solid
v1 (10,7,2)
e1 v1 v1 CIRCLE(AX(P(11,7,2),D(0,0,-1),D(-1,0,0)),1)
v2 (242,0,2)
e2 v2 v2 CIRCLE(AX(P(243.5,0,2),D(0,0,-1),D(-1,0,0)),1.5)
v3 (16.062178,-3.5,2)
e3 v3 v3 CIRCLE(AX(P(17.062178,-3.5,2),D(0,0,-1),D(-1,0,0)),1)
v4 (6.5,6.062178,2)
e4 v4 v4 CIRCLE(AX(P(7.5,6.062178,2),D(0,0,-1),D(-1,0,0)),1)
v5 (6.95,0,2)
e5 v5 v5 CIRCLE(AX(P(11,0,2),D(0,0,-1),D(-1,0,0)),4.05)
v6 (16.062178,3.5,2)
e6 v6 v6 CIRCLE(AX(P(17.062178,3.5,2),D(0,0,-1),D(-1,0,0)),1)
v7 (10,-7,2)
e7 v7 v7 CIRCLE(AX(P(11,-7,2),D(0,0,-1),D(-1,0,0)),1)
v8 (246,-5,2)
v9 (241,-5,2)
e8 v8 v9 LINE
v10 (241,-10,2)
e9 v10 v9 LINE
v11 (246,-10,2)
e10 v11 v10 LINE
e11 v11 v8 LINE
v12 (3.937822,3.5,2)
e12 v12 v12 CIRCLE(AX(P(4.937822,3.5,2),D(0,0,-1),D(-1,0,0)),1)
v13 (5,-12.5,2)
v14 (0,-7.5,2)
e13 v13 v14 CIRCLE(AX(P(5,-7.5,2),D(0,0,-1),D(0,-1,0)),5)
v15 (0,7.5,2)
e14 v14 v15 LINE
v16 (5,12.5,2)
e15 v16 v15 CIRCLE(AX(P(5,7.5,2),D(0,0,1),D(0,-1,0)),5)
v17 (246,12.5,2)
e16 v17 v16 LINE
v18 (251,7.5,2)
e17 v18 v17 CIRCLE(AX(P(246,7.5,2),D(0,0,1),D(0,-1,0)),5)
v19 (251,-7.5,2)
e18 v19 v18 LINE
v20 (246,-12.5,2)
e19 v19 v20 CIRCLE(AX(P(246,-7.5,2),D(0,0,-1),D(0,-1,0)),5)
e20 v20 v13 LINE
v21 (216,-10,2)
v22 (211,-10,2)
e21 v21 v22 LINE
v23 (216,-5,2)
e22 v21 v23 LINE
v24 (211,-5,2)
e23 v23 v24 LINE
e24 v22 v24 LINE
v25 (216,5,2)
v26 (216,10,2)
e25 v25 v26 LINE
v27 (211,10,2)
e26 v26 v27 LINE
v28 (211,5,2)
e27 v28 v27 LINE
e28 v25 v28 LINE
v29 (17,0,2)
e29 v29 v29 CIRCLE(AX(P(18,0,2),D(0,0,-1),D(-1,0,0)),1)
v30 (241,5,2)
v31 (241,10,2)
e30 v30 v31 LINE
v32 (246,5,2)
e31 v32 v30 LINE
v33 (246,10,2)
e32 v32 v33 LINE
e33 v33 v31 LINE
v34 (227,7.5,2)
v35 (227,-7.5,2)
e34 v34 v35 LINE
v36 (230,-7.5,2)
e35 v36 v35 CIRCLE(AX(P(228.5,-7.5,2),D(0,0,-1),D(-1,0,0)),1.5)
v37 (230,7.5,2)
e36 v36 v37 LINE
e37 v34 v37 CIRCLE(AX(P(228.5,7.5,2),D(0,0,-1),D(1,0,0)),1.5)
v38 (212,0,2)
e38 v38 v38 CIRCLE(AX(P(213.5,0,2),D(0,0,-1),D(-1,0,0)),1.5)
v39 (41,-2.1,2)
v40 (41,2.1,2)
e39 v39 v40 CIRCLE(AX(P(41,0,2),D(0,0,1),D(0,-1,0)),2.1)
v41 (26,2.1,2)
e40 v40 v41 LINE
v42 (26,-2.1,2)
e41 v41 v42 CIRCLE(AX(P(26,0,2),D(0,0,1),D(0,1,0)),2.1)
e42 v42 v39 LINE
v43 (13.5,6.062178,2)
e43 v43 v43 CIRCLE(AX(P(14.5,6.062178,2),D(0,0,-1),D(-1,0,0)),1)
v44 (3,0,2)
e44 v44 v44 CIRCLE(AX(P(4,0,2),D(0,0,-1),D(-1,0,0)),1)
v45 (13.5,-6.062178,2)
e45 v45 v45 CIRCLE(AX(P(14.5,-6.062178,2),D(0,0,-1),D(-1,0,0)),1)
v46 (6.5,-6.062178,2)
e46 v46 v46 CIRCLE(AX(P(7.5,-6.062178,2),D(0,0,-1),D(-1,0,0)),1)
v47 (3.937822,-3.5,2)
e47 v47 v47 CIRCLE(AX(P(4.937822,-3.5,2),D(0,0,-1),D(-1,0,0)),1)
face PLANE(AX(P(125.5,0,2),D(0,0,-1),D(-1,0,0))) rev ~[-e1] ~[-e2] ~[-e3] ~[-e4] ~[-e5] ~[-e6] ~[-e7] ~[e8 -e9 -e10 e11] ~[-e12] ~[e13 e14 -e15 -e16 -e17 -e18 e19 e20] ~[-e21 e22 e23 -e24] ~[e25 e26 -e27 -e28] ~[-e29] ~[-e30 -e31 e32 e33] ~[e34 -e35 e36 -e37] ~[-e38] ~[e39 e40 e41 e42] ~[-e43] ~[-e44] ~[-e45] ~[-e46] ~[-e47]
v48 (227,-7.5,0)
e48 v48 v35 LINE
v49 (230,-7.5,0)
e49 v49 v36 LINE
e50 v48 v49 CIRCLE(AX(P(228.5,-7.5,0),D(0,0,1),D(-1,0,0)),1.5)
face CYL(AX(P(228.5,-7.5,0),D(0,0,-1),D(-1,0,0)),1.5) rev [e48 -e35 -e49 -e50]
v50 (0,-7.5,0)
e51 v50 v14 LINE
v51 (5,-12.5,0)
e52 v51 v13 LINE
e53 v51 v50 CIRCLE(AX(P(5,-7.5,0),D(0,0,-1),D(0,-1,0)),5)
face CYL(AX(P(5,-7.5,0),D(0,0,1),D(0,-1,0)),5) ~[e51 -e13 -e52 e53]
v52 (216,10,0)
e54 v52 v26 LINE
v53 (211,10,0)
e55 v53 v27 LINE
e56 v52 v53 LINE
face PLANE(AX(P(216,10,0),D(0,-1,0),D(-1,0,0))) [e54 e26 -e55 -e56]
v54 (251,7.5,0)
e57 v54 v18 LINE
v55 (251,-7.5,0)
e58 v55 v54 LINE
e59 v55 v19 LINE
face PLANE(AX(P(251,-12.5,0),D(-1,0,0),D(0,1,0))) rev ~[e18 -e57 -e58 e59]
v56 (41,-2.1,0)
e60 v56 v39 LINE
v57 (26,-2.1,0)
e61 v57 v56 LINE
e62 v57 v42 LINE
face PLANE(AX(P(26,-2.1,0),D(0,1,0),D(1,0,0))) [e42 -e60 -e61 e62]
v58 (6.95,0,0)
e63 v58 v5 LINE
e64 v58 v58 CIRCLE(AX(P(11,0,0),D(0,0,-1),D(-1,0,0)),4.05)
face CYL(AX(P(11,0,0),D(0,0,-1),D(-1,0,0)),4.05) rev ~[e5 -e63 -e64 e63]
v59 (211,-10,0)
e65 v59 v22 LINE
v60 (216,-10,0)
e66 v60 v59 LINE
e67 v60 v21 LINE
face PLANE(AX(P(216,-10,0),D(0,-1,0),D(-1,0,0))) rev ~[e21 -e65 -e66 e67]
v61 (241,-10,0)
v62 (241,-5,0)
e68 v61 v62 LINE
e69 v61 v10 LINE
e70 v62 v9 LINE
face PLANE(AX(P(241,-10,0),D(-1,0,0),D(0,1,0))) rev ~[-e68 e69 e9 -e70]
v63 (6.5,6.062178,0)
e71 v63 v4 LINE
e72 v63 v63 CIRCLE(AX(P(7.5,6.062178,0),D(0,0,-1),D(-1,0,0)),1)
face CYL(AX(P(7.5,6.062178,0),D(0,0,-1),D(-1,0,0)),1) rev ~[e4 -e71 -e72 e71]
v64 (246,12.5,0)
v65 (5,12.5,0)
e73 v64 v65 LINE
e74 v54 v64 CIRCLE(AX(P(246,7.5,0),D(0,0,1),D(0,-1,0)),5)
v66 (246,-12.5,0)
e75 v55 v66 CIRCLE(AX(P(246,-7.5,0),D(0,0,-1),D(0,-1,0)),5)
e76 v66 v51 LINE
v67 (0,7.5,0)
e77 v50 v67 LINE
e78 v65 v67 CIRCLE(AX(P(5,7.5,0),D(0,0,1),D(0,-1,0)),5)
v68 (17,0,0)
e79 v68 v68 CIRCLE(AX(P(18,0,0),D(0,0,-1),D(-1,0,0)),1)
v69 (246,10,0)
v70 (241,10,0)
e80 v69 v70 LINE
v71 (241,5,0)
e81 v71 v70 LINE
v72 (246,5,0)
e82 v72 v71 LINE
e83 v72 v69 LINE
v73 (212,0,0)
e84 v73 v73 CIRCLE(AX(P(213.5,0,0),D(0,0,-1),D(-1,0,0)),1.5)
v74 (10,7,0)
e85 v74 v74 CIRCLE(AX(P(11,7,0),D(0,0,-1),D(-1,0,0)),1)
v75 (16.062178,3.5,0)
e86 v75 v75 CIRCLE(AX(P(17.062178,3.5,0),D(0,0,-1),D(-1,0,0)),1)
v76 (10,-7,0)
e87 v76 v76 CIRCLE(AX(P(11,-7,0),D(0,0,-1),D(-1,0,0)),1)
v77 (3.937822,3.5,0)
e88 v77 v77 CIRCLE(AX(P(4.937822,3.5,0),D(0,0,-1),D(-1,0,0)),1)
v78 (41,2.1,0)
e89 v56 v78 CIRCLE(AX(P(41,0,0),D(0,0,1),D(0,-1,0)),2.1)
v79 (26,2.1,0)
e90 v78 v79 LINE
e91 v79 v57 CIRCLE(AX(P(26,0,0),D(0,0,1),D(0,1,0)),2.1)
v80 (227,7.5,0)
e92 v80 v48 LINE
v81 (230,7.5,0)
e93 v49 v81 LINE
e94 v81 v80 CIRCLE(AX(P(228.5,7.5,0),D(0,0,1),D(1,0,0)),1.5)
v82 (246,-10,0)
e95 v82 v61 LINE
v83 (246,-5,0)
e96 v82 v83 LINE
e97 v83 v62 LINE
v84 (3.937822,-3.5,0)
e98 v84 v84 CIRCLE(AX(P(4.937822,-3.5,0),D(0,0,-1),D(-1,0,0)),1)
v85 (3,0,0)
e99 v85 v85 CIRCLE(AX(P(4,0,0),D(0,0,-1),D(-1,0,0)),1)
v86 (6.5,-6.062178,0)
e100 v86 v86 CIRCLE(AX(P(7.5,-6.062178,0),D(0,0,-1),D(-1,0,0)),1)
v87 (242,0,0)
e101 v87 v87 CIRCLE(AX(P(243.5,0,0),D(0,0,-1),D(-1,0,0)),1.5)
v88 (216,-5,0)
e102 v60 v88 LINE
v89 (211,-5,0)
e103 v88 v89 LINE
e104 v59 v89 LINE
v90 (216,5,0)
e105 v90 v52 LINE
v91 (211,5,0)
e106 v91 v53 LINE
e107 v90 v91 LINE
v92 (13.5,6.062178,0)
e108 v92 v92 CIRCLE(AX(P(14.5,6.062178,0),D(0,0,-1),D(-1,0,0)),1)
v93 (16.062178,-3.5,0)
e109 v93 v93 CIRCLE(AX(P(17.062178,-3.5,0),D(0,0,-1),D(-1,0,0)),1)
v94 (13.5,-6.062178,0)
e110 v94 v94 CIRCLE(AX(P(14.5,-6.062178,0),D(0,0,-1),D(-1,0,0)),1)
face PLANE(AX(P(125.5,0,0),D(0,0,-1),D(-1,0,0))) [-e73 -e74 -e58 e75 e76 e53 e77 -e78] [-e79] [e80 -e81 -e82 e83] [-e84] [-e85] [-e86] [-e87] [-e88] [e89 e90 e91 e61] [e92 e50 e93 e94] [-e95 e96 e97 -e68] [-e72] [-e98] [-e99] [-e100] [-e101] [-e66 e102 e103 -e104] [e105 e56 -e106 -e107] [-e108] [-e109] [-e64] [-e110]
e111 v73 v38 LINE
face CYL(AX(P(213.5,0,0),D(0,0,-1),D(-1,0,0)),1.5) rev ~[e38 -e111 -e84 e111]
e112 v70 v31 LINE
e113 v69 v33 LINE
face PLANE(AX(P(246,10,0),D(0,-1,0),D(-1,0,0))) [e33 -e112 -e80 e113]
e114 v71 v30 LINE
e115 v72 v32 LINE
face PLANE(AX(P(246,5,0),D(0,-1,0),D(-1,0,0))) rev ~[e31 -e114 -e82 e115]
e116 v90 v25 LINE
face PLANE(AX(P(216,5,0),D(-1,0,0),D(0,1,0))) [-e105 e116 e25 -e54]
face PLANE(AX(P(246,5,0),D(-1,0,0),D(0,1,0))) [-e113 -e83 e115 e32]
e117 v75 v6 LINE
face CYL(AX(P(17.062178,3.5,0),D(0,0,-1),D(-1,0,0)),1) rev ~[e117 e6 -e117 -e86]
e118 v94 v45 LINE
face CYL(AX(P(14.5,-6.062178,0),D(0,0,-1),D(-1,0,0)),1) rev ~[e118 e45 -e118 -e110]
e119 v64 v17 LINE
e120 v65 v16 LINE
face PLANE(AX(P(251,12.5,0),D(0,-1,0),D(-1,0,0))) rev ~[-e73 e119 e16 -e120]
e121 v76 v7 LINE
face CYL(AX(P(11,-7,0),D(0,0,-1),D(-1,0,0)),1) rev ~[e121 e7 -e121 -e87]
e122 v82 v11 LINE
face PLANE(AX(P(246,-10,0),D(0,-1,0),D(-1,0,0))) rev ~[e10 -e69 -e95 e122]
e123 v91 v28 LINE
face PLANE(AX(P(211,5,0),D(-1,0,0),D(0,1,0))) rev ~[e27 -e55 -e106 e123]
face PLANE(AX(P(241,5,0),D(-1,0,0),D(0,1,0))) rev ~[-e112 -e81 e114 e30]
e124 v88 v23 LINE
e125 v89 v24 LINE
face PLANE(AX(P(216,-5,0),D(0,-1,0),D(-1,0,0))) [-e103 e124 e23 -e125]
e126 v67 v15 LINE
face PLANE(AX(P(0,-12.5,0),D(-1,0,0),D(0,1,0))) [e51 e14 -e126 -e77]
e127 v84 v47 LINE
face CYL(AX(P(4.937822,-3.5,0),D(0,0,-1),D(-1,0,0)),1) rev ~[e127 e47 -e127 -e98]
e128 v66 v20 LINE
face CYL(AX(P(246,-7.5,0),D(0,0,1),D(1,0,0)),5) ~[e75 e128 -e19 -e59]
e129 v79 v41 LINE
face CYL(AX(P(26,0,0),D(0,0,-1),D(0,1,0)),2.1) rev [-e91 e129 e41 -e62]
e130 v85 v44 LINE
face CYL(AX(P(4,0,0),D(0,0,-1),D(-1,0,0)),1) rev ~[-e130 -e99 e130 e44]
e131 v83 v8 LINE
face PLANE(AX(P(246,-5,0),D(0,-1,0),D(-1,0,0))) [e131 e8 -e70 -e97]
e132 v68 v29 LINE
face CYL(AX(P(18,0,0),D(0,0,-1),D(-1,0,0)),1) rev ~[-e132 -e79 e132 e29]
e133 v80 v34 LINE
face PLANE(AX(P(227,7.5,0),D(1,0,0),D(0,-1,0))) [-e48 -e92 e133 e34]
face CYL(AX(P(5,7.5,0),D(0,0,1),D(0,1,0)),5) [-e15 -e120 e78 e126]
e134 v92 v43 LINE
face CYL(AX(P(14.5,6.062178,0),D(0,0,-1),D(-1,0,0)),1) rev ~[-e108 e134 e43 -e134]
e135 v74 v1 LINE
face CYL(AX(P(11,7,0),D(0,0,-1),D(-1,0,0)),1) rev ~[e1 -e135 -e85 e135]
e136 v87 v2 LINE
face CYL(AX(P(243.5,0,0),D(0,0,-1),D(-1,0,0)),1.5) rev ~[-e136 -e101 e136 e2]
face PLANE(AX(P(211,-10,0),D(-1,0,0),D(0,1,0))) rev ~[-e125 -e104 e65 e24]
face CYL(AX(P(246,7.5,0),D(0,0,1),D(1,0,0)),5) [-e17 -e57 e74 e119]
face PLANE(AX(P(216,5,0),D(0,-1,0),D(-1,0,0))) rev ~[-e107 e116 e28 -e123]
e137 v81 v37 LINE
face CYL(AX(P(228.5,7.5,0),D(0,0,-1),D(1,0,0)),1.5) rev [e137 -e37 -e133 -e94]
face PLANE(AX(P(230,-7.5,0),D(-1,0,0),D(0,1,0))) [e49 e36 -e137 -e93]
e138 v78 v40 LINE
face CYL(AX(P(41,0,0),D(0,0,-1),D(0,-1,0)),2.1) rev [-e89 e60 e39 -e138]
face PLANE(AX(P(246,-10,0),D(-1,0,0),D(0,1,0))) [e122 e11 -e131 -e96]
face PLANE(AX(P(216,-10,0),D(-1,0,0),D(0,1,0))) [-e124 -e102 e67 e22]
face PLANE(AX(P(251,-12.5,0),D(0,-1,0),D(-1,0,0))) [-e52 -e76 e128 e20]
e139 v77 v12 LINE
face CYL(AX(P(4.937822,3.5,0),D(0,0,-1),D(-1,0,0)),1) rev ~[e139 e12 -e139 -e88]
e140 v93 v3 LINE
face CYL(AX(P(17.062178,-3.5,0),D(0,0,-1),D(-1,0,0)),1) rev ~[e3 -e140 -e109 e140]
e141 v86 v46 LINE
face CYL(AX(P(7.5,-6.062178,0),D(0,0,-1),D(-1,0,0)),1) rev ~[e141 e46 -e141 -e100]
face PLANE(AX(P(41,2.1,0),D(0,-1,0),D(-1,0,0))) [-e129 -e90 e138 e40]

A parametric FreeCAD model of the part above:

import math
import FreeCAD as App
import Part
import Sketcher

V = App.Vector
Q = App.Units.Quantity


def edges_at(feature, points):
    """Names of the edges that pass closest to the given points."""
    edges = feature.Shape.Edges
    near = lambda p: min(range(len(edges)), key=lambda i: edges[i].distToShape(Part.Vertex(*p))[0])
    return sorted({f"Edge{near(p) + 1}" for p in points})


def add_polygon(sketch, points):
    """Adds a closed chain of lines whose ends are joined by coincident constraints."""
    first, n = sketch.GeometryCount, len(points)
    for a, b in zip(points, points[1:] + points[:1]):
        sketch.addGeometry(Part.LineSegment(App.Vector(*a, 0), App.Vector(*b, 0)), False)
    for i in range(n):
        sketch.addConstraint(Sketcher.Constraint("Coincident", first + i, 2, first + (i + 1) % n, 1))

doc = App.newDocument("Part")
body = doc.addObject("PartDesign::Body", "Body")

# Sketch on XY plane
sketch1 = doc.addObject("Sketcher::SketchObject", "Sketch")
body.addObject(sketch1)
sketch1.AttachmentSupport = (doc.XY_Plane, [""])
sketch1.MapMode = "FlatFace"
add_polygon(sketch1, [(251, 12.5), (251, -12.5), (0, -12.5), (0, 12.5)])  # lines 0-3
add_polygon(sketch1, [(241, -10), (246, -10), (246, -5), (241, -5)])  # lines 4-7
sketch1.addGeometry(Part.Circle(V(11, -7, 0), V(0, 0, 1), 1), False)  # 8
sketch1.addGeometry(Part.Circle(V(14.5, -6.1, 0), V(0, 0, 1), 1), False)  # 9
sketch1.addGeometry(Part.Circle(V(7.5, -6.1, 0), V(0, 0, 1), 1), False)  # 10
sketch1.addGeometry(Part.Circle(V(17.1, -3.5, 0), V(0, 0, 1), 1), False)  # 11
sketch1.addGeometry(Part.Circle(V(4.9, -3.5, 0), V(0, 0, 1), 1), False)  # 12
sketch1.addGeometry(Part.Circle(V(243.5, 0, 0), V(0, 0, 1), 1.5), False)  # 13
add_polygon(sketch1, [(241, 5), (246, 5), (246, 10), (241, 10)])  # lines 14-17
sketch1.addGeometry(Part.ArcOfCircle(Part.Circle(V(26, 0, 0), V(0, 0, 1), 2.1), math.radians(90), math.radians(270)), False)  # 18
sketch1.addGeometry(Part.LineSegment(V(26, -2.1, 0), V(41, -2.1, 0)), False)  # 19
sketch1.addGeometry(Part.ArcOfCircle(Part.Circle(V(41, 0, 0), V(0, 0, 1), 2.1), math.radians(-90), math.radians(90)), False)  # 20
sketch1.addGeometry(Part.LineSegment(V(41, 2.1, 0), V(26, 2.1, 0)), False)  # 21
sketch1.addGeometry(Part.Circle(V(18, 0, 0), V(0, 0, 1), 1), False)  # 22
sketch1.addGeometry(Part.Circle(V(11, 0, 0), V(0, 0, 1), 4), False)  # 23
sketch1.addGeometry(Part.Circle(V(4, 0, 0), V(0, 0, 1), 1), False)  # 24
sketch1.addGeometry(Part.Circle(V(17.1, 3.5, 0), V(0, 0, 1), 1), False)  # 25
sketch1.addGeometry(Part.Circle(V(4.9, 3.5, 0), V(0, 0, 1), 1), False)  # 26
sketch1.addGeometry(Part.Circle(V(14.5, 6.1, 0), V(0, 0, 1), 1), False)  # 27
sketch1.addGeometry(Part.Circle(V(7.5, 6.1, 0), V(0, 0, 1), 1), False)  # 28
sketch1.addGeometry(Part.Circle(V(11, 7, 0), V(0, 0, 1), 1), False)  # 29
sketch1.addConstraint([
    Sketcher.Constraint("Tangent", 18, 2, 19, 1),
    Sketcher.Constraint("Tangent", 19, 2, 20, 1),
    Sketcher.Constraint("Tangent", 20, 2, 21, 1),
    Sketcher.Constraint("Tangent", 21, 2, 18, 1),
    Sketcher.Constraint("Vertical", 0),
    Sketcher.Constraint("Horizontal", 1),
    Sketcher.Constraint("Vertical", 2),
    Sketcher.Constraint("Horizontal", 3),
    Sketcher.Constraint("Horizontal", 4),
    Sketcher.Constraint("Vertical", 5),
    Sketcher.Constraint("Horizontal", 6),
    Sketcher.Constraint("Vertical", 7),
    Sketcher.Constraint("Horizontal", 14),
    Sketcher.Constraint("Vertical", 15),
    Sketcher.Constraint("Horizontal", 16),
    Sketcher.Constraint("Vertical", 17),
    Sketcher.Constraint("Horizontal", 19),
    Sketcher.Constraint("Horizontal", 21),
    Sketcher.Constraint("Equal", 8, 9),
    Sketcher.Constraint("Equal", 9, 10),
    Sketcher.Constraint("Equal", 10, 11),
    Sketcher.Constraint("Equal", 11, 12),
    Sketcher.Constraint("Equal", 12, 22),
    Sketcher.Constraint("Equal", 22, 24),
    Sketcher.Constraint("Equal", 24, 25),
    Sketcher.Constraint("Equal", 25, 26),
    Sketcher.Constraint("Equal", 26, 27),
    Sketcher.Constraint("Equal", 27, 28),
    Sketcher.Constraint("Equal", 28, 29),
    Sketcher.Constraint("Symmetric", 1, 2, 2, 2, -1, 1),
    Sketcher.Constraint("Symmetric", 11, 3, 25, 3, -1),
    Sketcher.Constraint("Symmetric", 12, 3, 26, 3, -1),
    Sketcher.Constraint("Symmetric", 9, 3, 27, 3, -1),
    Sketcher.Constraint("Symmetric", 10, 3, 28, 3, -1),
    Sketcher.Constraint("Symmetric", 8, 3, 29, 3, -1),
    Sketcher.Constraint("Symmetric", 5, 2, 14, 2, -1),
    Sketcher.Constraint("Symmetric", 7, 2, 16, 2, -1),
    Sketcher.Constraint("PointOnObject", 13, 3, -1),
    Sketcher.Constraint("PointOnObject", 18, 3, -1),
    Sketcher.Constraint("PointOnObject", 22, 3, -1),
    Sketcher.Constraint("PointOnObject", 23, 3, -1),
    Sketcher.Constraint("PointOnObject", 24, 3, -1),
    Sketcher.Constraint("Horizontal", 9, 3, 10, 3),
    Sketcher.Constraint("Horizontal", 11, 3, 12, 3),
    Sketcher.Constraint("Vertical", 8, 3, 23, 3),
    Sketcher.Constraint("Equal", 16, 5),
    Sketcher.Constraint("Diameter", 8, Q("2 mm")),
    Sketcher.Constraint("Diameter", 13, Q("3 mm")),
    Sketcher.Constraint("Diameter", 23, Q("8.1 mm")),
    Sketcher.Constraint("Radius", 18, Q("2.1 mm")),
    Sketcher.Constraint("DistanceX", 1, 2, 1, 1, Q("251 mm")),
    Sketcher.Constraint("DistanceX", 4, 1, 4, 2, Q("5 mm")),
    Sketcher.Constraint("DistanceX", 19, 1, 19, 2, Q("15 mm")),
    Sketcher.Constraint("DistanceY", 0, 2, 0, 1, Q("25 mm")),
    Sketcher.Constraint("DistanceX", -1, 1, 8, 3, Q("11 mm")),
    Sketcher.Constraint("DistanceY", 8, 3, -1, 1, Q("7 mm")),
    Sketcher.Constraint("DistanceX", -1, 1, 18, 3, Q("26 mm")),
    Sketcher.Constraint("DistanceX", -1, 1, 22, 3, Q("18 mm")),
    Sketcher.Constraint("DistanceX", -1, 1, 24, 3, Q("4 mm")),
    Sketcher.Constraint("DistanceX", -1, 1, 4, 2, Q("246 mm")),
    Sketcher.Constraint("DistanceY", 4, 2, -1, 1, Q("10 mm")),
    Sketcher.Constraint("DistanceX", 10, 3, 9, 3, Q("7 mm")),
    Sketcher.Constraint("DistanceX", 9, 3, 13, 3, Q("229 mm")),
    Sketcher.Constraint("DistanceY", 11, 3, 25, 3, Q("7 mm")),
    Sketcher.Constraint("DistanceX", -1, 1, 9, 3, Q("14.5 mm")),
    Sketcher.Constraint("DistanceY", 9, 3, -1, 1, Q("6.062178 mm")),
    Sketcher.Constraint("DistanceX", -1, 1, 11, 3, Q("17.062178 mm")),
    Sketcher.Constraint("DistanceX", -1, 1, 12, 3, Q("4.937822 mm")),
])
pad1 = doc.addObject("PartDesign::Pad", "Pad")
body.addObject(pad1)
pad1.Profile = sketch1
pad1.Length = 2
doc.recompute()

fillet = doc.addObject("PartDesign::Fillet", "Fillet")
body.addObject(fillet)
fillet.Base = (pad1, edges_at(pad1, [
    (251, 12.5, 1),
    (0, 12.5, 1),
    (0, -12.5, 1),
    (251, -12.5, 1),
]))
fillet.Radius = 5

# Sketch on XY plane
sketch2 = doc.addObject("Sketcher::SketchObject", "Sketch001")
body.addObject(sketch2)
sketch2.AttachmentSupport = (doc.XY_Plane, [""])
sketch2.MapMode = "FlatFace"
sketch2.addGeometry(Part.Circle(V(243.5, 0, 0), V(0, 0, 1), 1.5), False)  # 0
sketch2.addGeometry(Part.Circle(V(213.5, 0, 0), V(0, 0, 1), 1.5), False)  # 1
add_polygon(sketch2, [(246, -5), (246, -10), (241, -10), (241, -5)])  # lines 2-5
add_polygon(sketch2, [(246, 10), (246, 5), (241, 5), (241, 10)])  # lines 6-9
add_polygon(sketch2, [(216, -5), (216, -10), (211, -10), (211, -5)])  # lines 10-13
add_polygon(sketch2, [(216, 10), (216, 5), (211, 5), (211, 10)])  # lines 14-17
sketch2.addGeometry(Part.LineSegment(V(230, 7.5, 0), V(230, -7.5, 0)), False)  # 18
sketch2.addGeometry(Part.ArcOfCircle(Part.Circle(V(228.5, -7.5, 0), V(0, 0, 1), 1.5), math.radians(180), math.radians(360)), False)  # 19
sketch2.addGeometry(Part.LineSegment(V(227, -7.5, 0), V(227, 7.5, 0)), False)  # 20
sketch2.addGeometry(Part.ArcOfCircle(Part.Circle(V(228.5, 7.5, 0), V(0, 0, 1), 1.5), math.radians(0), math.radians(180)), False)  # 21
sketch2.addConstraint([
    Sketcher.Constraint("Tangent", 18, 2, 19, 2),
    Sketcher.Constraint("Tangent", 19, 1, 20, 1),
    Sketcher.Constraint("Tangent", 20, 2, 21, 2),
    Sketcher.Constraint("Tangent", 21, 1, 18, 1),
    Sketcher.Constraint("Vertical", 2),
    Sketcher.Constraint("Horizontal", 3),
    Sketcher.Constraint("Vertical", 4),
    Sketcher.Constraint("Horizontal", 5),
    Sketcher.Constraint("Vertical", 6),
    Sketcher.Constraint("Horizontal", 7),
    Sketcher.Constraint("Vertical", 8),
    Sketcher.Constraint("Horizontal", 9),
    Sketcher.Constraint("Vertical", 10),
    Sketcher.Constraint("Horizontal", 11),
    Sketcher.Constraint("Vertical", 12),
    Sketcher.Constraint("Horizontal", 13),
    Sketcher.Constraint("Vertical", 14),
    Sketcher.Constraint("Horizontal", 15),
    Sketcher.Constraint("Vertical", 16),
    Sketcher.Constraint("Horizontal", 17),
    Sketcher.Constraint("Vertical", 18),
    Sketcher.Constraint("Vertical", 20),
    Sketcher.Constraint("Equal", 0, 1),
    Sketcher.Constraint("Equal", 1, 19),
    Sketcher.Constraint("Symmetric", 5, 2, 6, 2, -1),
    Sketcher.Constraint("Symmetric", 3, 2, 8, 2, -1),
    Sketcher.Constraint("Symmetric", 13, 2, 14, 2, -1),
    Sketcher.Constraint("Symmetric", 11, 2, 16, 2, -1),
    Sketcher.Constraint("PointOnObject", 0, 3, -1),
    Sketcher.Constraint("PointOnObject", 1, 3, -1),
    Sketcher.Constraint("Horizontal", 3, 2, 10, 2),
    Sketcher.Constraint("Horizontal", 5, 2, 12, 2),
    Sketcher.Constraint("Equal", 9, 11),
    Sketcher.Constraint("Equal", 17, 2),
    Sketcher.Constraint("Diameter", 0, Q("3 mm")),
    Sketcher.Constraint("DistanceX", 3, 2, 3, 1, Q("5 mm")),
    Sketcher.Constraint("DistanceY", 18, 2, 18, 1, Q("15 mm")),
    Sketcher.Constraint("DistanceX", -1, 1, 2, 2, Q("246 mm")),
    Sketcher.Constraint("DistanceY", 2, 2, -1, 1, Q("10 mm")),
    Sketcher.Constraint("DistanceX", -1, 1, 10, 2, Q("216 mm")),
    Sketcher.Constraint("DistanceX", -1, 1, 18, 2, Q("230 mm")),
    Sketcher.Constraint("DistanceX", 1, 3, 0, 3, Q("30 mm")),
    Sketcher.Constraint("DistanceX", 19, 3, 0, 3, Q("15 mm")),
    Sketcher.Constraint("DistanceY", 19, 3, -1, 1, Q("7.5 mm")),
])
pocket1 = doc.addObject("PartDesign::Pocket", "Pocket")
body.addObject(pocket1)
pocket1.Profile = sketch2
pocket1.Length = 10
pocket1.Reversed = True

doc.recompute()
